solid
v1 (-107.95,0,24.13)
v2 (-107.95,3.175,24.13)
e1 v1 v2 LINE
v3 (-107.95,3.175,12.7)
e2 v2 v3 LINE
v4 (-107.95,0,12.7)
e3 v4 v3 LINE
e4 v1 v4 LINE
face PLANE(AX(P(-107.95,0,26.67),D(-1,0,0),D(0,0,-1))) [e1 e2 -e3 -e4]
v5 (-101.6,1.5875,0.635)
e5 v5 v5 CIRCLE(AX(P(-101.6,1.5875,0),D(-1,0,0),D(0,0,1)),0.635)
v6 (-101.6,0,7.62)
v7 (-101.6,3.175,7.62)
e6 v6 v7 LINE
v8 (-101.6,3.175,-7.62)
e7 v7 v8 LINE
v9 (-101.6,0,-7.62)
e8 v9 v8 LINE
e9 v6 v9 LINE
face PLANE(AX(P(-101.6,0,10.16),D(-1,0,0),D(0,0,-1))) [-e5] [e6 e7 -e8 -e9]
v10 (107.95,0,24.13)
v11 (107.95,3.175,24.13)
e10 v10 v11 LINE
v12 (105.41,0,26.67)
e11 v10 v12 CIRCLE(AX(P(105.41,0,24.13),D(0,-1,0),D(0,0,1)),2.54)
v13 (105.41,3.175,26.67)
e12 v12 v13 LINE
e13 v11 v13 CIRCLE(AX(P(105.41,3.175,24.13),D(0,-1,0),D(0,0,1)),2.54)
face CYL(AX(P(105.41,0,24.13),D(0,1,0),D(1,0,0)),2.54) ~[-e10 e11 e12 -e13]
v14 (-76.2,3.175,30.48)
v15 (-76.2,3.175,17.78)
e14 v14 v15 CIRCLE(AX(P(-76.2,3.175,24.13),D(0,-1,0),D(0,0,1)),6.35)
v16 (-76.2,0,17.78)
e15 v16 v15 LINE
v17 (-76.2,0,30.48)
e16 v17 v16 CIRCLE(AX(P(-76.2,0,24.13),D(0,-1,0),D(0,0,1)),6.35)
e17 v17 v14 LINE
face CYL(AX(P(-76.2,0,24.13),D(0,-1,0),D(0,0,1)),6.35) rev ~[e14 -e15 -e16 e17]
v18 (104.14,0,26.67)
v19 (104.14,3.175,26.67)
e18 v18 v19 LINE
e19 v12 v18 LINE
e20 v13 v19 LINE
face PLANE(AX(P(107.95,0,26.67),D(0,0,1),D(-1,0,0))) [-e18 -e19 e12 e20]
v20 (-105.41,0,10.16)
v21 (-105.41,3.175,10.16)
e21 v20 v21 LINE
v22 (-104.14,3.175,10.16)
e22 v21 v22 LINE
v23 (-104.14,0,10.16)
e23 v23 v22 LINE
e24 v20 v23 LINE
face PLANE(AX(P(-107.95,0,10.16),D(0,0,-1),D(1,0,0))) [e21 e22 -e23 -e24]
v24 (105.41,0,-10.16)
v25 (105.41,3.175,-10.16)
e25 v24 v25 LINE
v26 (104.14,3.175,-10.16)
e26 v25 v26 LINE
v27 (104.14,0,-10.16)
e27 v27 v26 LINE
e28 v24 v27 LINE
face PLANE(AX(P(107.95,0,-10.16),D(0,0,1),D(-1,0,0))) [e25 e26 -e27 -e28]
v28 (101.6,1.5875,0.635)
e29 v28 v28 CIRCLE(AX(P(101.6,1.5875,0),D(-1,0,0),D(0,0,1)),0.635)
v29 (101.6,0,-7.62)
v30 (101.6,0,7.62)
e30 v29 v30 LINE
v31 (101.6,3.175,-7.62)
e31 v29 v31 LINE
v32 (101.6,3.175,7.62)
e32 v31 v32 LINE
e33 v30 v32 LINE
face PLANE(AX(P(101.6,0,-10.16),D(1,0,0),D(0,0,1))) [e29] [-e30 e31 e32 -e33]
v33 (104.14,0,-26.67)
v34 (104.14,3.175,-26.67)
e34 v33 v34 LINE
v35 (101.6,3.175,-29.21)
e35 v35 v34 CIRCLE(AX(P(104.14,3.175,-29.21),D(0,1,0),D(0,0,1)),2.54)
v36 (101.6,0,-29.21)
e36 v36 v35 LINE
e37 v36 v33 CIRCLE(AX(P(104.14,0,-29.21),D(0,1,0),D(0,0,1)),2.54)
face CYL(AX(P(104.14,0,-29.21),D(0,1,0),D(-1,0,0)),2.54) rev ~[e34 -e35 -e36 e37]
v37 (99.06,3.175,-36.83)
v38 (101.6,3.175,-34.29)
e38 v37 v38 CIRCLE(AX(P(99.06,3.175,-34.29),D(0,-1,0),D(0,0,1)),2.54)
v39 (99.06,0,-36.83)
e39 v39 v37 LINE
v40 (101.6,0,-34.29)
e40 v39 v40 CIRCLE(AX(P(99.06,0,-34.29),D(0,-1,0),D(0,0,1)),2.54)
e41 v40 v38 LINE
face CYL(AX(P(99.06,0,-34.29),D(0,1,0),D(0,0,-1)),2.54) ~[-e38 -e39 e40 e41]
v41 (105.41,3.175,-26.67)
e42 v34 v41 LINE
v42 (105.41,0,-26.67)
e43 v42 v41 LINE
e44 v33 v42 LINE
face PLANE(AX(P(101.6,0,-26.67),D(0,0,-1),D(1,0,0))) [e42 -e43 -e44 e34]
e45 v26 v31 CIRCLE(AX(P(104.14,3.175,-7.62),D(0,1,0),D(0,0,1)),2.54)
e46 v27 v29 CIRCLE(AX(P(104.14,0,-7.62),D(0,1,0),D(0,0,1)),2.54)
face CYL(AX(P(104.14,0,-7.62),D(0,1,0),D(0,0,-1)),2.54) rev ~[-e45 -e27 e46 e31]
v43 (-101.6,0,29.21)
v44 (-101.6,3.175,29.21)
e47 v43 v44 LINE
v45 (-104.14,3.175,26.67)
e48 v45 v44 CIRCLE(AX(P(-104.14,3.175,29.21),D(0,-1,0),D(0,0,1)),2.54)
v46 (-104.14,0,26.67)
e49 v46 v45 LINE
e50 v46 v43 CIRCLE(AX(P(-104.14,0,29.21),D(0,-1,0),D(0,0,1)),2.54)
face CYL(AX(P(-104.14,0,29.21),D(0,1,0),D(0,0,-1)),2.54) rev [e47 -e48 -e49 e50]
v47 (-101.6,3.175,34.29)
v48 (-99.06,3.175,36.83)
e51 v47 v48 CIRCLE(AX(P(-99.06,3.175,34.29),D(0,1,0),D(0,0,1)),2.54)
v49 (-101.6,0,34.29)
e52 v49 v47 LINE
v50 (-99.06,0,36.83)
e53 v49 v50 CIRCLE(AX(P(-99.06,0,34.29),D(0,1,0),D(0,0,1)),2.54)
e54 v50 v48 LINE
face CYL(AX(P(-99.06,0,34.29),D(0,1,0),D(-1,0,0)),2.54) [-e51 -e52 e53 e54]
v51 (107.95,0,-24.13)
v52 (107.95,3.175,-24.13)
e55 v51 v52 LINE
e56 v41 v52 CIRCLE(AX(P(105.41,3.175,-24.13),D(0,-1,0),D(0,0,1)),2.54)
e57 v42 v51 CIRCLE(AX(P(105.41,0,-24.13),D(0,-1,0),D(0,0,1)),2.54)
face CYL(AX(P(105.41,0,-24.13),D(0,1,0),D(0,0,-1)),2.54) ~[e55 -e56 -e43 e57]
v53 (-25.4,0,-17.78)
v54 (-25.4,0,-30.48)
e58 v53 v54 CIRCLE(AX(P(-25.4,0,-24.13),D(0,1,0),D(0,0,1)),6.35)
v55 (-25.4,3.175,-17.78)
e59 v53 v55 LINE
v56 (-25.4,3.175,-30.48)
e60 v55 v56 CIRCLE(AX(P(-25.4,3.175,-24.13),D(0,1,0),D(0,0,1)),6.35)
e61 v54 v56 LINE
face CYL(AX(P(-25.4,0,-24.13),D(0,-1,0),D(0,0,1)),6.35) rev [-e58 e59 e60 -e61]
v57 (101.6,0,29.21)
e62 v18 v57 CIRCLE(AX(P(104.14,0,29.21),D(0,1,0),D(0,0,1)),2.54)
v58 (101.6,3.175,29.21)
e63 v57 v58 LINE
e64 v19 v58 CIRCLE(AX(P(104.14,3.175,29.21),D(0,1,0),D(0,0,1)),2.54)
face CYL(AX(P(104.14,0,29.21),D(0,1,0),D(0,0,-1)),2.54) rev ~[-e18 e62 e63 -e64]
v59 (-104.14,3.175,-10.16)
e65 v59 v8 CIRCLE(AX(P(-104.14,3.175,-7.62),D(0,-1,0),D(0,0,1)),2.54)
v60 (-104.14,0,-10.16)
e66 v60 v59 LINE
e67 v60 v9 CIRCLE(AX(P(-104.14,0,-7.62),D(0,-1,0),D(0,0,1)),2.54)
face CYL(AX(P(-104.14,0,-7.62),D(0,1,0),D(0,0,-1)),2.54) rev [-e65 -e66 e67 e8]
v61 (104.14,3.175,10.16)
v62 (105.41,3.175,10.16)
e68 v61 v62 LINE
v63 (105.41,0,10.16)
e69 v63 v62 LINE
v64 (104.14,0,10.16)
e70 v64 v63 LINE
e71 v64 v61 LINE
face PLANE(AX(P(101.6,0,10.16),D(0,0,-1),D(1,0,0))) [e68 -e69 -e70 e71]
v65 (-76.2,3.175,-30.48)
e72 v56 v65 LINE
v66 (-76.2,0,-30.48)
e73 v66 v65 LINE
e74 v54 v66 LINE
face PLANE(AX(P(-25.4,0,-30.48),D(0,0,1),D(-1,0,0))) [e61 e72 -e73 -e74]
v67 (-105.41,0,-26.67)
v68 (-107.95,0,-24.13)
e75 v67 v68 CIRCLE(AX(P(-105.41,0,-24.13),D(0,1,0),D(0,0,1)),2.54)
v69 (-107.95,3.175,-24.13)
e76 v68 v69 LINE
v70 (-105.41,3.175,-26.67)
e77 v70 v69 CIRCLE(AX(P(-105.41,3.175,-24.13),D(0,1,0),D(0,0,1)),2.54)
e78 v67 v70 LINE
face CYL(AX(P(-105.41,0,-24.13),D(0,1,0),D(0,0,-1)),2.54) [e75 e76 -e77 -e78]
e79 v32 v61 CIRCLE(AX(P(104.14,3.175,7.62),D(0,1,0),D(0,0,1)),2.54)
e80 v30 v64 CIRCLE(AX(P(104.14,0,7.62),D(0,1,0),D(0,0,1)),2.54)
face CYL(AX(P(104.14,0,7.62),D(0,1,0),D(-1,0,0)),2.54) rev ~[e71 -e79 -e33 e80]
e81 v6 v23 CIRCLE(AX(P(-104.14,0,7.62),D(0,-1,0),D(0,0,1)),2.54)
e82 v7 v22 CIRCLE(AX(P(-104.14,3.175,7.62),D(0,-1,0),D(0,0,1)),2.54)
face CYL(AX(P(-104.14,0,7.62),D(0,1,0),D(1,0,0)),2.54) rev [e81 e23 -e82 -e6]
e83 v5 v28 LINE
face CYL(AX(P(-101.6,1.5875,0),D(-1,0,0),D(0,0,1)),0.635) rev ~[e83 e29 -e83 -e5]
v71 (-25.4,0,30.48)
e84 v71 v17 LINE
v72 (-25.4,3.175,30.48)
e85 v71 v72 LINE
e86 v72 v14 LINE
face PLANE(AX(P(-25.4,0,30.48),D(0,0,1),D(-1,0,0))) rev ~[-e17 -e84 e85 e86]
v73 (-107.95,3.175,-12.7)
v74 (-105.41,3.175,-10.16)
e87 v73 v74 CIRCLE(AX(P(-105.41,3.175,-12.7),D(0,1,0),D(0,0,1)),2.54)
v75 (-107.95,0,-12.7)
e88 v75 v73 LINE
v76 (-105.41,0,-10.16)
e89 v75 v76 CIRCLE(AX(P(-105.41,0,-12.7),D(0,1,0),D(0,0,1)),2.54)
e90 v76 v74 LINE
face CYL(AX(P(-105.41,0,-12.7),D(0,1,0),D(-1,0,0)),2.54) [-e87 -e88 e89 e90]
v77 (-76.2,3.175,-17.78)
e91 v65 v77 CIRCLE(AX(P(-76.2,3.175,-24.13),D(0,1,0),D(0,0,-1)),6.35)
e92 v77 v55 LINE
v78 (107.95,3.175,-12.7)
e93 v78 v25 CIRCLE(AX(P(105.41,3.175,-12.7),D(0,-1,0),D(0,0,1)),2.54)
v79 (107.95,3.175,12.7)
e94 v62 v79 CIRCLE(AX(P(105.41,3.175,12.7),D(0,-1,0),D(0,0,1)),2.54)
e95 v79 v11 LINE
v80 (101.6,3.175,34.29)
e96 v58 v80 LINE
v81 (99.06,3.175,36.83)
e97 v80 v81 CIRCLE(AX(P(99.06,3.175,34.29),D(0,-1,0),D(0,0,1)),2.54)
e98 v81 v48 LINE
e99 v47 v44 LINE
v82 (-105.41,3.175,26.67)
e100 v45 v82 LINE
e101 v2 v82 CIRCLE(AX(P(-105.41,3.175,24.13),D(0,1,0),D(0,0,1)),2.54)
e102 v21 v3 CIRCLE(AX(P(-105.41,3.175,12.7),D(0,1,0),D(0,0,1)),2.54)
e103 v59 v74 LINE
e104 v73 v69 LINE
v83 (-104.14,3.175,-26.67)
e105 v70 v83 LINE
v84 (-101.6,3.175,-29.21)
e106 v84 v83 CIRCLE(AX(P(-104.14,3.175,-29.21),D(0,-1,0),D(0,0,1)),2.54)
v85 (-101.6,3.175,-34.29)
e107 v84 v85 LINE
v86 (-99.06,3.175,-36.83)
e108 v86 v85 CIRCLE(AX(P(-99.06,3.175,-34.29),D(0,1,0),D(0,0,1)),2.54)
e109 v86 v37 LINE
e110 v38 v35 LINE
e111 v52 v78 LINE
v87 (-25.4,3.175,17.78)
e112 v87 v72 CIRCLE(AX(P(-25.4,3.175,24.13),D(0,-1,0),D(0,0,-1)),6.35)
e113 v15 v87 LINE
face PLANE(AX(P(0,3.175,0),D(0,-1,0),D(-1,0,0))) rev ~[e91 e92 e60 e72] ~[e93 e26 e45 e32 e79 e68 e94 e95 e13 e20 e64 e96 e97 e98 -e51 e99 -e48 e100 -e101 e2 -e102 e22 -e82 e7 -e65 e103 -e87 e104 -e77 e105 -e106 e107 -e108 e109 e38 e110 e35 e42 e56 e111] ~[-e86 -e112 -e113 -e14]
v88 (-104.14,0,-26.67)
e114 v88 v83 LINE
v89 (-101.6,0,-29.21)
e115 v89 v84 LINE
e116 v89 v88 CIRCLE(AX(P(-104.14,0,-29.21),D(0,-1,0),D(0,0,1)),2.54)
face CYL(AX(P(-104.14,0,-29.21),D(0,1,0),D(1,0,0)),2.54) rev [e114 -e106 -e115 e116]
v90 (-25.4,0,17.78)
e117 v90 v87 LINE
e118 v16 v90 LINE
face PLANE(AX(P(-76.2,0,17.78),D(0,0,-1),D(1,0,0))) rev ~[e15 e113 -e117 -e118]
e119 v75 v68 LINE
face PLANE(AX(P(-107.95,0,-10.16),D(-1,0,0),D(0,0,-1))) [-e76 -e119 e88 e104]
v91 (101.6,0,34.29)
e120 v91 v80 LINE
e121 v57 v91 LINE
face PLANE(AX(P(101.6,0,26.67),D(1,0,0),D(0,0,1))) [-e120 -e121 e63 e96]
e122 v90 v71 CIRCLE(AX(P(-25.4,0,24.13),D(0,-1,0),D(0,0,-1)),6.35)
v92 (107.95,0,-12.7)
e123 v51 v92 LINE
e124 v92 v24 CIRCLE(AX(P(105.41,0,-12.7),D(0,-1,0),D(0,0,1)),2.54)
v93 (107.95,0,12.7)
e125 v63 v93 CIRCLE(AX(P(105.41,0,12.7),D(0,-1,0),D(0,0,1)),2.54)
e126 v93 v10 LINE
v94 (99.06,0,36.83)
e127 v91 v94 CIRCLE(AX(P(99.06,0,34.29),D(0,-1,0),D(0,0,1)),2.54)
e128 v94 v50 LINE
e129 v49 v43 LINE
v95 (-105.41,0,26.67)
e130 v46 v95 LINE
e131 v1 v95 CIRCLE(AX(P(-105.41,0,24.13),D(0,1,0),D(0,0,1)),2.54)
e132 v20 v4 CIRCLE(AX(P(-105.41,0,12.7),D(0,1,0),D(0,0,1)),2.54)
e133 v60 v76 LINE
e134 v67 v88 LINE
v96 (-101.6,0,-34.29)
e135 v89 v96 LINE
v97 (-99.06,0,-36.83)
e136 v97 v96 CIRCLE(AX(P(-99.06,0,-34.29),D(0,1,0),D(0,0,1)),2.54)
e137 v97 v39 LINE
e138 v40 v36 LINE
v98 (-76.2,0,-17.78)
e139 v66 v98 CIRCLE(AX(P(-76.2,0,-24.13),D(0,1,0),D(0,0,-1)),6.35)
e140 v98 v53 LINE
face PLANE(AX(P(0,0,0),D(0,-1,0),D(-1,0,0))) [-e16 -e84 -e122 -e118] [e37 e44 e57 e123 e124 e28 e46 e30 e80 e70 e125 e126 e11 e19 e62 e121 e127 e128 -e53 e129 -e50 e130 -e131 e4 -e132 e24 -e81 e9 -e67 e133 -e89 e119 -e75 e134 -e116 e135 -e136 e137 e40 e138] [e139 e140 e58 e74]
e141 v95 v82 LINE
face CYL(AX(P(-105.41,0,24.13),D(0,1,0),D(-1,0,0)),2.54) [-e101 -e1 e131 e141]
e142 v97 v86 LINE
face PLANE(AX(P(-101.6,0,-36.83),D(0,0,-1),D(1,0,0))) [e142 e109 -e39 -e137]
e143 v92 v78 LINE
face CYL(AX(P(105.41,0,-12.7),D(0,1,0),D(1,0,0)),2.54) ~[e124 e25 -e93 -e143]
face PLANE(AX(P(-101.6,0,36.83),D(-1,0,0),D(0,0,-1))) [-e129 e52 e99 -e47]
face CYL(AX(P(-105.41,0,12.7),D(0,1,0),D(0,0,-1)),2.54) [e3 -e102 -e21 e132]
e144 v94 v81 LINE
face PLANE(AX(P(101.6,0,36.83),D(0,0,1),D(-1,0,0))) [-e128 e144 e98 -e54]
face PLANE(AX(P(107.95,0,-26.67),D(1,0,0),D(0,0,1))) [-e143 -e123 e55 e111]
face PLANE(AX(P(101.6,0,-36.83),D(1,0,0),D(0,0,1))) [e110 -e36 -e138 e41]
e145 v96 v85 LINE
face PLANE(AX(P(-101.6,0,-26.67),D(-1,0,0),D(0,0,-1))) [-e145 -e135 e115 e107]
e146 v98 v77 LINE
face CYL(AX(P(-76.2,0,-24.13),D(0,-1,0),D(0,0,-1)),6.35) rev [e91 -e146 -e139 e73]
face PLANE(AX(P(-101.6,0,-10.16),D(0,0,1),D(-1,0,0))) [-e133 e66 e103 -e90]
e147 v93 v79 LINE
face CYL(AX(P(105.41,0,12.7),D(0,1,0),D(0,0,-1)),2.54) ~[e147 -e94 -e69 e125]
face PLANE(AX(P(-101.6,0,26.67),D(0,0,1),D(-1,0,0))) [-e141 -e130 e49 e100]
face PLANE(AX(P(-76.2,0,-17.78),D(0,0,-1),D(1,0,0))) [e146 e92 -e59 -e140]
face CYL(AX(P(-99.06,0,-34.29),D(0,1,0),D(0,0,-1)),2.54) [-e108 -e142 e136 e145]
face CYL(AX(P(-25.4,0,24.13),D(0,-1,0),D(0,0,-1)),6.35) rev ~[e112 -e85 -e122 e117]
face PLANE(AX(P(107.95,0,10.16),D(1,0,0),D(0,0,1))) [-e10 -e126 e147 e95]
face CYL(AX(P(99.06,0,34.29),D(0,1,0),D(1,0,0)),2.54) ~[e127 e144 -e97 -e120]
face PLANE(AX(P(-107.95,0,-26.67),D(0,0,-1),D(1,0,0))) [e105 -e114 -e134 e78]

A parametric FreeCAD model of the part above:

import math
import FreeCAD as App
import Part
import Sketcher
Q = App.Units.Quantity


def edges_at(feature, points):
    """Names of the edges that pass closest to the given points."""
    edges = feature.Shape.Edges
    near = lambda p: min(range(len(edges)), key=lambda i: edges[i].distToShape(Part.Vertex(*p))[0])
    return sorted({f"Edge{near(p) + 1}" for p in points})

doc = App.newDocument("Part")
body = doc.addObject("PartDesign::Body", "Body")

sketch1 = body.newObject("Sketcher::SketchObject", "Sketch")
sketch1.AttachmentSupport = (doc.getObject("XZ_Plane"), [""])
sketch1.MapMode = "FlatFace"
sketch1.addGeometry([
    Part.LineSegment(App.Vector(101.6, -36.83, 0), App.Vector(-101.6, -36.83, 0)),
    Part.LineSegment(App.Vector(-101.6, -36.83, 0), App.Vector(-101.6, -26.67, 0)),
    Part.LineSegment(App.Vector(-101.6, -26.67, 0), App.Vector(-107.95, -26.67, 0)),
    Part.LineSegment(App.Vector(-107.95, -26.67, 0), App.Vector(-107.95, -10.16, 0)),
    Part.LineSegment(App.Vector(-107.95, -10.16, 0), App.Vector(-101.6, -10.16, 0)),
    Part.LineSegment(App.Vector(-101.6, -10.16, 0), App.Vector(-101.6, 10.16, 0)),
    Part.LineSegment(App.Vector(-101.6, 10.16, 0), App.Vector(-107.95, 10.16, 0)),
    Part.LineSegment(App.Vector(-107.95, 10.16, 0), App.Vector(-107.95, 26.67, 0)),
    Part.LineSegment(App.Vector(-107.95, 26.67, 0), App.Vector(-101.6, 26.67, 0)),
    Part.LineSegment(App.Vector(-101.6, 26.67, 0), App.Vector(-101.6, 36.83, 0)),
    Part.LineSegment(App.Vector(-101.6, 36.83, 0), App.Vector(101.6, 36.83, 0)),
    Part.LineSegment(App.Vector(101.6, 36.83, 0), App.Vector(101.6, 26.67, 0)),
    Part.LineSegment(App.Vector(101.6, 26.67, 0), App.Vector(107.95, 26.67, 0)),
    Part.LineSegment(App.Vector(107.95, 26.67, 0), App.Vector(107.95, 10.16, 0)),
    Part.LineSegment(App.Vector(107.95, 10.16, 0), App.Vector(101.6, 10.16, 0)),
    Part.LineSegment(App.Vector(101.6, 10.16, 0), App.Vector(101.6, -10.16, 0)),
    Part.LineSegment(App.Vector(101.6, -10.16, 0), App.Vector(107.95, -10.16, 0)),
    Part.LineSegment(App.Vector(107.95, -10.16, 0), App.Vector(107.95, -26.67, 0)),
    Part.LineSegment(App.Vector(107.95, -26.67, 0), App.Vector(101.6, -26.67, 0)),
    Part.LineSegment(App.Vector(101.6, -26.67, 0), App.Vector(101.6, -36.83, 0)),
    Part.LineSegment(App.Vector(-76.2, 17.78, 0), App.Vector(-25.4, 17.78, 0)),
    Part.ArcOfCircle(Part.Circle(App.Vector(-25.4, 24.13, 0), App.Vector(0, 0, 1), 6.35), math.radians(-90), math.radians(90)),
    Part.LineSegment(App.Vector(-25.4, 30.48, 0), App.Vector(-76.2, 30.48, 0)),
    Part.ArcOfCircle(Part.Circle(App.Vector(-76.2, 24.13, 0), App.Vector(0, 0, 1), 6.35), math.radians(90), math.radians(270)),
    Part.ArcOfCircle(Part.Circle(App.Vector(-76.2, -24.13, 0), App.Vector(0, 0, 1), 6.35), math.radians(90), math.radians(270)),
    Part.LineSegment(App.Vector(-76.2, -30.48, 0), App.Vector(-25.4, -30.48, 0)),
    Part.ArcOfCircle(Part.Circle(App.Vector(-25.4, -24.13, 0), App.Vector(0, 0, 1), 6.35), math.radians(-90), math.radians(90)),
    Part.LineSegment(App.Vector(-25.4, -17.78, 0), App.Vector(-76.2, -17.78, 0)),
], False)
sketch1.addConstraint([
    Sketcher.Constraint("Coincident", 0, 2, 1, 1),
    Sketcher.Constraint("Coincident", 1, 2, 2, 1),
    Sketcher.Constraint("Coincident", 2, 2, 3, 1),
    Sketcher.Constraint("Coincident", 3, 2, 4, 1),
    Sketcher.Constraint("Coincident", 4, 2, 5, 1),
    Sketcher.Constraint("Coincident", 5, 2, 6, 1),
    Sketcher.Constraint("Coincident", 6, 2, 7, 1),
    Sketcher.Constraint("Coincident", 7, 2, 8, 1),
    Sketcher.Constraint("Coincident", 8, 2, 9, 1),
    Sketcher.Constraint("Coincident", 9, 2, 10, 1),
    Sketcher.Constraint("Coincident", 10, 2, 11, 1),
    Sketcher.Constraint("Coincident", 11, 2, 12, 1),
    Sketcher.Constraint("Coincident", 12, 2, 13, 1),
    Sketcher.Constraint("Coincident", 13, 2, 14, 1),
    Sketcher.Constraint("Coincident", 14, 2, 15, 1),
    Sketcher.Constraint("Coincident", 15, 2, 16, 1),
    Sketcher.Constraint("Coincident", 16, 2, 17, 1),
    Sketcher.Constraint("Coincident", 17, 2, 18, 1),
    Sketcher.Constraint("Coincident", 18, 2, 19, 1),
    Sketcher.Constraint("Coincident", 19, 2, 0, 1),
    Sketcher.Constraint("Tangent", 20, 2, 21, 1),
    Sketcher.Constraint("Tangent", 21, 2, 22, 1),
    Sketcher.Constraint("Tangent", 22, 2, 23, 1),
    Sketcher.Constraint("Tangent", 23, 2, 20, 1),
    Sketcher.Constraint("Tangent", 24, 2, 25, 1),
    Sketcher.Constraint("Tangent", 25, 2, 26, 1),
    Sketcher.Constraint("Tangent", 26, 2, 27, 1),
    Sketcher.Constraint("Tangent", 27, 2, 24, 1),
    Sketcher.Constraint("Horizontal", 0),
    Sketcher.Constraint("Vertical", 1),
    Sketcher.Constraint("Horizontal", 2),
    Sketcher.Constraint("Vertical", 3),
    Sketcher.Constraint("Horizontal", 4),
    Sketcher.Constraint("Vertical", 5),
    Sketcher.Constraint("Horizontal", 6),
    Sketcher.Constraint("Vertical", 7),
    Sketcher.Constraint("Horizontal", 8),
    Sketcher.Constraint("Vertical", 9),
    Sketcher.Constraint("Horizontal", 10),
    Sketcher.Constraint("Vertical", 11),
    Sketcher.Constraint("Horizontal", 12),
    Sketcher.Constraint("Vertical", 13),
    Sketcher.Constraint("Horizontal", 14),
    Sketcher.Constraint("Vertical", 15),
    Sketcher.Constraint("Horizontal", 16),
    Sketcher.Constraint("Vertical", 17),
    Sketcher.Constraint("Horizontal", 18),
    Sketcher.Constraint("Vertical", 19),
    Sketcher.Constraint("Horizontal", 20),
    Sketcher.Constraint("Horizontal", 22),
    Sketcher.Constraint("Horizontal", 25),
    Sketcher.Constraint("Horizontal", 27),
    Sketcher.Constraint("Equal", 23, 24),
    Sketcher.Constraint("Symmetric", 0, 2, 10, 2, -1, 1),
    Sketcher.Constraint("Symmetric", 2, 2, 12, 2, -1, 1),
    Sketcher.Constraint("Symmetric", 4, 2, 14, 2, -1, 1),
    Sketcher.Constraint("Symmetric", 6, 2, 16, 2, -1, 1),
    Sketcher.Constraint("Symmetric", 8, 2, 18, 2, -1, 1),
    Sketcher.Constraint("Symmetric", 8, 2, 11, 2, -2),
    Sketcher.Constraint("Symmetric", 6, 2, 13, 2, -2),
    Sketcher.Constraint("Symmetric", 23, 3, 24, 3, -1),
    Sketcher.Constraint("Vertical", 21, 3, 26, 3),
    Sketcher.Constraint("Vertical", 1, 2, 4, 2),
    Sketcher.Constraint("DistanceX", 0, 2, 0, 1, Q("8 in")),
    Sketcher.Constraint("DistanceX", 20, 1, 20, 2, Q("2 in")),
    Sketcher.Constraint("Radius", 21, Q("0.25 in")),
    Sketcher.Constraint("DistanceY", 1, 1, 1, 2, Q("0.4 in")),
    Sketcher.Constraint("DistanceY", 5, 1, 5, 2, Q("0.8 in")),
    Sketcher.Constraint("DistanceX", 21, 3, -1, 1, Q("1 in")),
    Sketcher.Constraint("DistanceY", 1, 2, 23, 3, Q("2 in")),
    Sketcher.Constraint("DistanceX", 2, 2, 2, 1, Q("0.25 in")),
    Sketcher.Constraint("DistanceY", 3, 1, 3, 2, Q("0.65 in")),
])
pad1 = body.newObject("PartDesign::Pad", "Pad")
pad1.Profile = sketch1
pad1.Length = Q("0.125 in")
pad1.Reversed = True
doc.recompute()

fillet = body.newObject("PartDesign::Fillet", "Fillet")
fillet.Base = (pad1, edges_at(pad1, [
    (101.6, 1.587, 36.83),
    (-101.6, 1.587, 36.83),
    (-101.6, 1.587, 26.67),
    (-107.95, 1.587, 26.67),
    (-107.95, 1.587, 10.16),
    (-101.6, 1.587, 10.16),
    (-101.6, 1.587, -10.16),
    (-107.95, 1.587, -10.16),
    (-107.95, 1.587, -26.67),
    (-101.6, 1.587, -26.67),
    (-101.6, 1.587, -36.83),
    (101.6, 1.587, -36.83),
    (101.6, 1.587, -26.67),
    (107.95, 1.587, -26.67),
    (107.95, 1.587, -10.16),
    (101.6, 1.587, -10.16),
    (101.6, 1.587, 10.16),
    (107.95, 1.587, 10.16),
    (107.95, 1.587, 26.67),
    (101.6, 1.587, 26.67),
]))
fillet.Radius = Q("0.1 in")

sketch2 = body.newObject("Sketcher::SketchObject", "Sketch001")
sketch2.AttachmentSupport = (doc.getObject("YZ_Plane"), [""])
sketch2.MapMode = "FlatFace"
sketch2.AttachmentOffset = App.Placement(App.Vector(0, 0, -4 * 25.4), App.Rotation())
sketch2.addGeometry(Part.Circle(App.Vector(1.5875, 0, 0), App.Vector(0, 0, 1), 0.635), False)
sketch2.addConstraint([
    Sketcher.Constraint("PointOnObject", 0, 3, -1),
    Sketcher.Constraint("Diameter", 0, Q("0.05 in")),
    Sketcher.Constraint("DistanceX", -1, 1, 0, 3, Q("0.0625 in")),
])
pocket1 = body.newObject("PartDesign::Pocket", "Pocket")
pocket1.Profile = sketch2
pocket1.Type = "ThroughAll"
pocket1.Reversed = True

doc.recompute()
